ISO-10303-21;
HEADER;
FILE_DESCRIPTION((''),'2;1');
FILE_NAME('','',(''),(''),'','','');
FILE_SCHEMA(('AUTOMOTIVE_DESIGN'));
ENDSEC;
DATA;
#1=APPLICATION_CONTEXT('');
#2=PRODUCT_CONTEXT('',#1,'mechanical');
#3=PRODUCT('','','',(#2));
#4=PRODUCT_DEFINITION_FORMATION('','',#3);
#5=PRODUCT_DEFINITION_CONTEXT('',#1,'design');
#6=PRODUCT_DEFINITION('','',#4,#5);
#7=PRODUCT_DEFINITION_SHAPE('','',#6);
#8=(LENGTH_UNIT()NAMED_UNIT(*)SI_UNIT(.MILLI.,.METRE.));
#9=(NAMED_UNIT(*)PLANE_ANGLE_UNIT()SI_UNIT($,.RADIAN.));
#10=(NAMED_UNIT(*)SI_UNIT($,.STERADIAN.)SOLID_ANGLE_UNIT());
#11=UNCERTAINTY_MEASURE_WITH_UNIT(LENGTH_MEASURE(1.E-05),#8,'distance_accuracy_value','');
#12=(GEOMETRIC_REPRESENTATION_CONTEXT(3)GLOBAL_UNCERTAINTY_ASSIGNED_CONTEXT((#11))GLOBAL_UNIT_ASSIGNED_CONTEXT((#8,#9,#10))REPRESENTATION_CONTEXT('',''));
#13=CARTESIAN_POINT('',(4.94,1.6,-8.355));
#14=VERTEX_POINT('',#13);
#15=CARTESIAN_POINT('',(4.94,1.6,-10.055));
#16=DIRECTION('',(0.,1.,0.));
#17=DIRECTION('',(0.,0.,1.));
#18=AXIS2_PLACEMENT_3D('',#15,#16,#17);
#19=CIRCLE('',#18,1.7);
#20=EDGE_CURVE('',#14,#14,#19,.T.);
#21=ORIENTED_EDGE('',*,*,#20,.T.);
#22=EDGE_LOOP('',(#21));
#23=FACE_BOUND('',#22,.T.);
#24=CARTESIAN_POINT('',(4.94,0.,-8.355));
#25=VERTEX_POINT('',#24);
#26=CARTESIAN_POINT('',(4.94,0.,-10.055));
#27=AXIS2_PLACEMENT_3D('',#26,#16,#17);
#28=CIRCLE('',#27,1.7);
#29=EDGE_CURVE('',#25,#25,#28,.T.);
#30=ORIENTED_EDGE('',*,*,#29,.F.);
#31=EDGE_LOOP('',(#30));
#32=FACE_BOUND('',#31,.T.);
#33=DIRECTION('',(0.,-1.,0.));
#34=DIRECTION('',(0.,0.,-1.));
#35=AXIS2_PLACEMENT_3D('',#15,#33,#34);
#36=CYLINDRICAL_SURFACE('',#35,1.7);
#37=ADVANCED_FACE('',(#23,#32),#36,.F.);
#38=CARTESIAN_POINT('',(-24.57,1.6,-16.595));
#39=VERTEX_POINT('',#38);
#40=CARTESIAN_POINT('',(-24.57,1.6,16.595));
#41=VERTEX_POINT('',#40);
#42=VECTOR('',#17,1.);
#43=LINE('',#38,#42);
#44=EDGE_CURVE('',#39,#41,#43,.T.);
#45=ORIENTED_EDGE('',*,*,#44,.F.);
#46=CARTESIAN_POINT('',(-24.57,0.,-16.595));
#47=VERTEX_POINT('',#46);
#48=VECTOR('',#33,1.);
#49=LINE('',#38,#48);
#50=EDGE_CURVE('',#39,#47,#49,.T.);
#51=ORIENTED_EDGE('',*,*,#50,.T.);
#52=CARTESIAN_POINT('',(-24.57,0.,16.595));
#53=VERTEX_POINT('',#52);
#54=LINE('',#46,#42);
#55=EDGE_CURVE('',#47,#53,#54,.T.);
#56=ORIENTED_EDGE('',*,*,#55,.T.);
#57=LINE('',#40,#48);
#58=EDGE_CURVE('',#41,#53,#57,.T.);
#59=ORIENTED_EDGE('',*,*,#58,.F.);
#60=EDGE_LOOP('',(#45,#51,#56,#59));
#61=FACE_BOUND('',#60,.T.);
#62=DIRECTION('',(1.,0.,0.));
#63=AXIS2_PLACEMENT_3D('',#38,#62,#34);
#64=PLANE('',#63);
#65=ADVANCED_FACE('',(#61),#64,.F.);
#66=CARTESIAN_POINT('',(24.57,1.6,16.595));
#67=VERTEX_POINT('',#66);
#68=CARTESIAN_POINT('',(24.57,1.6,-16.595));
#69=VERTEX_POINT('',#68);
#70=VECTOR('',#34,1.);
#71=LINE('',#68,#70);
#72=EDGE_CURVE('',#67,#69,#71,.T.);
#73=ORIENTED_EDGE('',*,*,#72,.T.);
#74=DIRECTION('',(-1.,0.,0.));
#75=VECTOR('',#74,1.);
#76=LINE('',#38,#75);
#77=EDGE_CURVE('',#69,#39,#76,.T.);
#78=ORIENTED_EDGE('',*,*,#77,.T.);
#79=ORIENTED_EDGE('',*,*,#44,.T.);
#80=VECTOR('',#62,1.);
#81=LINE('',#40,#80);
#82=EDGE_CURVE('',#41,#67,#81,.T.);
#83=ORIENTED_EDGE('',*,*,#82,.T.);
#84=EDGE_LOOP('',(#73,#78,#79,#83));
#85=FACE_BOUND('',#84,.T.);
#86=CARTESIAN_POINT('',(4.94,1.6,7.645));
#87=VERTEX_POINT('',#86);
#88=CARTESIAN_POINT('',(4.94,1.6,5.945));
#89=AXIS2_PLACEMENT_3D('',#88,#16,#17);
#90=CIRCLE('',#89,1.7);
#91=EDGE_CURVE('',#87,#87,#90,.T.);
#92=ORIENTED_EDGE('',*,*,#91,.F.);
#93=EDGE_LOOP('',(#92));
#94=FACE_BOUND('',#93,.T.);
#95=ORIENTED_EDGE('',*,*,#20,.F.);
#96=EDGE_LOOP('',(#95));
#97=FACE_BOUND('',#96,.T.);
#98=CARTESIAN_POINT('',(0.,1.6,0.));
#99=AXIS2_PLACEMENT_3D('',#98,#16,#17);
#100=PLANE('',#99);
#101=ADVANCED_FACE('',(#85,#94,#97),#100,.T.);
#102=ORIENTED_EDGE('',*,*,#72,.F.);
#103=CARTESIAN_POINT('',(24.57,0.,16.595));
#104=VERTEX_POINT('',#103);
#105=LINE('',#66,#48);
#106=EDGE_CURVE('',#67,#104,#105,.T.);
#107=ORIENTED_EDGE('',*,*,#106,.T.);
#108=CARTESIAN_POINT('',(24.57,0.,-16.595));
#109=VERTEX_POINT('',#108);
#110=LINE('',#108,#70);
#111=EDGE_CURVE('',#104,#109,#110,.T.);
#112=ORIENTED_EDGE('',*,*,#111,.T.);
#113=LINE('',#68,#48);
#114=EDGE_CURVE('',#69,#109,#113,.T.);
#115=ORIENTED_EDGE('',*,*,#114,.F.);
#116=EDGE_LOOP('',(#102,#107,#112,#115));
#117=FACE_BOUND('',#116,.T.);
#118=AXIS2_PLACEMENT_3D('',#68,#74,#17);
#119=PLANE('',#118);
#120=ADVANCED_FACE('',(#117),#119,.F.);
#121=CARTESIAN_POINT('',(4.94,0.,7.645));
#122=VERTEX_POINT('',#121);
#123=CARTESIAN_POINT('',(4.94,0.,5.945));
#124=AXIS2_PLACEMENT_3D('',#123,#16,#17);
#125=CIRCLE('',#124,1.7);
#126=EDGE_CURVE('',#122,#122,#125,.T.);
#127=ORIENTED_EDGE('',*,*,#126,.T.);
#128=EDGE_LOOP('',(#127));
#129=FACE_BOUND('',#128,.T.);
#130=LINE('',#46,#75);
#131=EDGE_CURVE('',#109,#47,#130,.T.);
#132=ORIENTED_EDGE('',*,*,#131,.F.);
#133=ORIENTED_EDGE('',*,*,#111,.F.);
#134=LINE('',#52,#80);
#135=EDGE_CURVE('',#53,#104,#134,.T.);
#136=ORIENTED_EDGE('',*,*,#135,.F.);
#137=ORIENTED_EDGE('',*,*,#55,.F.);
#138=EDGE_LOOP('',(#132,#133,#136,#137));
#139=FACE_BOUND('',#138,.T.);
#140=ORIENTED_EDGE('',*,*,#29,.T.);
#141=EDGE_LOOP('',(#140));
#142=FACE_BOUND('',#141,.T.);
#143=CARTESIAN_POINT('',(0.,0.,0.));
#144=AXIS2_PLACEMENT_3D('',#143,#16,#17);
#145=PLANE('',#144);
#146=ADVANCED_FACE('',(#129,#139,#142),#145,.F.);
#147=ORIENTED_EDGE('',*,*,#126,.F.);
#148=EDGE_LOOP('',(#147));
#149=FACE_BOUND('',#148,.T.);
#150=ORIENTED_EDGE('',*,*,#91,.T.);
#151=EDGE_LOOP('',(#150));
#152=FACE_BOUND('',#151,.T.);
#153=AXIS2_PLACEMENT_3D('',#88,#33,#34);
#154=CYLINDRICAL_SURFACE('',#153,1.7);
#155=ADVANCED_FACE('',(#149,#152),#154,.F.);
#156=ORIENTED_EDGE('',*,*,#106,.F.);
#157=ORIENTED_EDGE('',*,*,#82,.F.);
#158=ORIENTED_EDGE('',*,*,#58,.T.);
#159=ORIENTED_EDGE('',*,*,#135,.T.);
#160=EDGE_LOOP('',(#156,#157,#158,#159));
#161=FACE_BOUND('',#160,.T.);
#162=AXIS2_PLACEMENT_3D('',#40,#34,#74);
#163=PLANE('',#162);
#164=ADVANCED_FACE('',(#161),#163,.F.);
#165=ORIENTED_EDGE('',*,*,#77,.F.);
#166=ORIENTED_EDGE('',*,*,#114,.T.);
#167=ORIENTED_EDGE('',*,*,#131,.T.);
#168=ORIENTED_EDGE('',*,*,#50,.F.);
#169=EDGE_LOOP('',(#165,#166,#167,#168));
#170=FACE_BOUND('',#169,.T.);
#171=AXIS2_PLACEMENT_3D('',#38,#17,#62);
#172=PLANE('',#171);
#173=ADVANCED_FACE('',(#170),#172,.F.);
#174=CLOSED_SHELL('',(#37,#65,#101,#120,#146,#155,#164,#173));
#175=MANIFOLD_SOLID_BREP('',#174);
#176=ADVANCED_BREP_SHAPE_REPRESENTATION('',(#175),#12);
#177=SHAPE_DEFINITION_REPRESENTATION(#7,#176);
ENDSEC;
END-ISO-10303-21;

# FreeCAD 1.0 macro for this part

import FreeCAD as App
import Part
import Sketcher

V = App.Vector


def add_polygon(sketch, points):
    """Adds a closed chain of lines whose ends are joined by coincident constraints."""
    first, n = sketch.GeometryCount, len(points)
    for a, b in zip(points, points[1:] + points[:1]):
        sketch.addGeometry(Part.LineSegment(App.Vector(*a, 0), App.Vector(*b, 0)), False)
    for i in range(n):
        sketch.addConstraint(Sketcher.Constraint("Coincident", first + i, 2, first + (i + 1) % n, 1))

doc = App.newDocument("Part")
body = doc.addObject("PartDesign::Body", "Body")

sketch1 = body.newObject("Sketcher::SketchObject", "Sketch")
sketch1.AttachmentSupport = (doc.getObject("XZ_Plane"), [""])
sketch1.MapMode = "FlatFace"
add_polygon(sketch1, [(-24.6, -16.6), (-24.6, 16.6), (24.6, 16.6), (24.6, -16.6)])
sketch1.addGeometry(Part.Circle(V(4.9, 5.9, 0), V(0, 0, 1), 1.7), False)
sketch1.addGeometry(Part.Circle(V(4.9, -10.1, 0), V(0, 0, 1), 1.7), False)
sketch1.addConstraint([
    Sketcher.Constraint("Vertical", 0),
    Sketcher.Constraint("Horizontal", 1),
    Sketcher.Constraint("Vertical", 2),
    Sketcher.Constraint("Horizontal", 3),
    Sketcher.Constraint("Equal", 4, 5),
    Sketcher.Constraint("Symmetric", 0, 2, 2, 2, -1, 1),
    Sketcher.Constraint("Vertical", 4, 3, 5, 3),
    Sketcher.Constraint("Diameter", 4, 3.4),
    Sketcher.Constraint("DistanceY", 5, 3, 4, 3, 16.0),
    Sketcher.Constraint("DistanceX", 1, 1, 1, 2, 49.14),
    Sketcher.Constraint("DistanceY", 0, 1, 0, 2, 33.19),
    Sketcher.Constraint("DistanceX", -1, 1, 4, 3, 4.94),
    Sketcher.Constraint("DistanceY", 4, 3, 0, 2, 10.65),
])
pad1 = body.newObject("PartDesign::Pad", "Pad")
pad1.Profile = sketch1
pad1.Length = 1.6
pad1.Reversed = True

doc.recompute()
